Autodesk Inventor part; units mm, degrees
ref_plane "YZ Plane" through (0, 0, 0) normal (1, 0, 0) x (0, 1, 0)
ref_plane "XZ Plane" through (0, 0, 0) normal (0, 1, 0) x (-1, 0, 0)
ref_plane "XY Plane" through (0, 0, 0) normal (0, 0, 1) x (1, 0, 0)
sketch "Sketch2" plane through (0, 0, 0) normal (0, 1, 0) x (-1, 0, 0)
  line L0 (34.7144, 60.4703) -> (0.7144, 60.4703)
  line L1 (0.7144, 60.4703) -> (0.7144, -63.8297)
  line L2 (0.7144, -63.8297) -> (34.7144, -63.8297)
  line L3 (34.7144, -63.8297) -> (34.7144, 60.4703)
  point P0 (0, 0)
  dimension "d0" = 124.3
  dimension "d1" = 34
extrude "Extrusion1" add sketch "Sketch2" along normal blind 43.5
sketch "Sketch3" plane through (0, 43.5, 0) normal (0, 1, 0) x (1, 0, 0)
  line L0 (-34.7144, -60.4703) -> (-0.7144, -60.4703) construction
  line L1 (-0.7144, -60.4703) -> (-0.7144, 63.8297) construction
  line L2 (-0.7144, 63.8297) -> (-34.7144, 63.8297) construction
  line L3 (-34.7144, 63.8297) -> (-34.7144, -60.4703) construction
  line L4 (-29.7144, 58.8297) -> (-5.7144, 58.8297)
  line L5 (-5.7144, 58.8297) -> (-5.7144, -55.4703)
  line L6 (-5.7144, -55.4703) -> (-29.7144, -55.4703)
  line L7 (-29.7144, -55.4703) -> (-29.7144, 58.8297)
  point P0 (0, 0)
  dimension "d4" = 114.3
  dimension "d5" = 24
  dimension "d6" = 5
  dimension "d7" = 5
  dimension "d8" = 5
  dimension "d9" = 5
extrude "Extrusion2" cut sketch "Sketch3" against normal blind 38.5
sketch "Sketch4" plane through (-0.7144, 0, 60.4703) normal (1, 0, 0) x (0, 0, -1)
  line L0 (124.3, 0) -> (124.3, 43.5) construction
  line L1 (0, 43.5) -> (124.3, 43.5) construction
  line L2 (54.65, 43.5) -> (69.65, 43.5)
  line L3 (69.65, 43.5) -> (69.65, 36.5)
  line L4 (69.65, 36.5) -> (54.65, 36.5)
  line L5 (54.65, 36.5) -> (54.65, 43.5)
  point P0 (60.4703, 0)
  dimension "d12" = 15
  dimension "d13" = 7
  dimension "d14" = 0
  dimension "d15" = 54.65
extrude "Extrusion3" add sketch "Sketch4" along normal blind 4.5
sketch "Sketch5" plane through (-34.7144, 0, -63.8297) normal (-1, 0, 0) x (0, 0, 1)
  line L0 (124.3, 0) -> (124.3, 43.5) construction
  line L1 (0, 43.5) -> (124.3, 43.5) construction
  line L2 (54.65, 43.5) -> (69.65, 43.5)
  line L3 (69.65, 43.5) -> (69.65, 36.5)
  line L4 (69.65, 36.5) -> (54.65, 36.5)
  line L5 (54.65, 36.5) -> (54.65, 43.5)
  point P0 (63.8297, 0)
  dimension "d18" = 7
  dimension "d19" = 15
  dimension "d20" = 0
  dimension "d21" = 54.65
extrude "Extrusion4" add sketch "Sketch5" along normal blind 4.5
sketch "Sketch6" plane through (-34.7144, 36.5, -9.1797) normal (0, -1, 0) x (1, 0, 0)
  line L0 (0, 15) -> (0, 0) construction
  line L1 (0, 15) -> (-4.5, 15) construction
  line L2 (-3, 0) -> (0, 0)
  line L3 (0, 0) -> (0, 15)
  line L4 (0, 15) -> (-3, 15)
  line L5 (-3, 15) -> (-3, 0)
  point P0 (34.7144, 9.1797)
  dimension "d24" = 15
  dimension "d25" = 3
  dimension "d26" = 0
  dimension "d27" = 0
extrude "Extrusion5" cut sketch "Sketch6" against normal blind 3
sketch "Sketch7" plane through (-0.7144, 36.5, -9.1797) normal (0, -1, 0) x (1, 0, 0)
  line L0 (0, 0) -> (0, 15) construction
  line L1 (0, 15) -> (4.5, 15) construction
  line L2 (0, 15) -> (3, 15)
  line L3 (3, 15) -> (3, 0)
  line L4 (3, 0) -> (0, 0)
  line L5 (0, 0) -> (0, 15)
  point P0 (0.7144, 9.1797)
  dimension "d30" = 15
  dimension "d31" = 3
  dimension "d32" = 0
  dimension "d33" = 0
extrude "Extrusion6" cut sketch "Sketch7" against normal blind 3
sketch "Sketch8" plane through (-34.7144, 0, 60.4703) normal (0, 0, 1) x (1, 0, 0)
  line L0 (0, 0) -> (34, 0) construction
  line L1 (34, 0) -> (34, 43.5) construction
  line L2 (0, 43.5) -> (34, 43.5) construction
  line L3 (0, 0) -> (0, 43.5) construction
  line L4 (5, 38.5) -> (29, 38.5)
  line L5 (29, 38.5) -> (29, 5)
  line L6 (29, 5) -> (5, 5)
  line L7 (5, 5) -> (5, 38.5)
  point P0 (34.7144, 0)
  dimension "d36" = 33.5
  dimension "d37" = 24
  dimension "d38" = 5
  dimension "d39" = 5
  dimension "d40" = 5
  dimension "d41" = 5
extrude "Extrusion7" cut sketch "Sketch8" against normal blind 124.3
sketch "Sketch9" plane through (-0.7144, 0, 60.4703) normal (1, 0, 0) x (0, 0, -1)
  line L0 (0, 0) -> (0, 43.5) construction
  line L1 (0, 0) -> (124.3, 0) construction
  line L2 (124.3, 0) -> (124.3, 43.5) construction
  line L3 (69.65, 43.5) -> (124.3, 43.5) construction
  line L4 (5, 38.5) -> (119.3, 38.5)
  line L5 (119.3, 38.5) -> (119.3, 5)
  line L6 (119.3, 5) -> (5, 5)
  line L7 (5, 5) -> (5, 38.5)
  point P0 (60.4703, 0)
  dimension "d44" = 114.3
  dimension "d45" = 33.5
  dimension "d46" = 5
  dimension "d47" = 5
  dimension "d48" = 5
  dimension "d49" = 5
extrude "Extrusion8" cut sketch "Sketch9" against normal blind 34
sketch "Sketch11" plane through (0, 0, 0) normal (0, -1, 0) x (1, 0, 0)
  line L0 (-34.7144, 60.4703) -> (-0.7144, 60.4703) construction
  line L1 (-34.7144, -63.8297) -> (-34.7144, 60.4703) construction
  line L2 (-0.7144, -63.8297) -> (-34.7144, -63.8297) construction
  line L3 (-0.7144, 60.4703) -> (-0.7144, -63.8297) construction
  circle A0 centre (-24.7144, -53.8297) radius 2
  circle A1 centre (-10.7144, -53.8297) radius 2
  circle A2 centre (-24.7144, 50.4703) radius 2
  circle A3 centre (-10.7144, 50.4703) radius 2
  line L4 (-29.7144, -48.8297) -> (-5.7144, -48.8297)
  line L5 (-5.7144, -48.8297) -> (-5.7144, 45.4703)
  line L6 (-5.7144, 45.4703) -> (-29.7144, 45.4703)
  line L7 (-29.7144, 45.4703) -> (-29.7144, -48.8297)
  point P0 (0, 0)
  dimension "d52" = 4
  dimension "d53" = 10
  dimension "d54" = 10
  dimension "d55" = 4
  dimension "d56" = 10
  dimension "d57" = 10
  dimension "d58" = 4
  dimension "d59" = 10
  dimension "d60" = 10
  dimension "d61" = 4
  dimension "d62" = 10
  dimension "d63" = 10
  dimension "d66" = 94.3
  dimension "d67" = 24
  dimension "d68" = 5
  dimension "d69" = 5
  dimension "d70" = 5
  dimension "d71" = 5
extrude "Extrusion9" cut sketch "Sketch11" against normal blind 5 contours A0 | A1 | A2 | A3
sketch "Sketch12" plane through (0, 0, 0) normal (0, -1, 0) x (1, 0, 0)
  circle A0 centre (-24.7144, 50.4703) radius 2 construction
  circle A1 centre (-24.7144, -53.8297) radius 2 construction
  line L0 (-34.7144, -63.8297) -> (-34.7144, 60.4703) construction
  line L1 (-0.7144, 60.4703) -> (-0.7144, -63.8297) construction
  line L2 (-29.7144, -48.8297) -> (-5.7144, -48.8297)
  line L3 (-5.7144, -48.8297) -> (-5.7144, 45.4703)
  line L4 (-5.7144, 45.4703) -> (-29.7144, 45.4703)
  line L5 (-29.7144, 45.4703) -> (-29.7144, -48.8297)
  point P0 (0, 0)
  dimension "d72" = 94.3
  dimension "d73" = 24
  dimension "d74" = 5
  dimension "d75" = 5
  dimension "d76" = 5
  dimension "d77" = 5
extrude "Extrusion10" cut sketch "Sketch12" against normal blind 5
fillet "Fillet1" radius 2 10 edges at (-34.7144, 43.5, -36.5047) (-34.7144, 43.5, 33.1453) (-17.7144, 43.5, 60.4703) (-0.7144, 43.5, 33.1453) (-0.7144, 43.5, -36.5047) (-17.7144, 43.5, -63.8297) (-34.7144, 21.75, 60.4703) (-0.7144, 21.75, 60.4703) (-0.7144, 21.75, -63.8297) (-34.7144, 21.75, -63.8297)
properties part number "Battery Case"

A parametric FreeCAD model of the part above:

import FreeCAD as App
import Part
import Sketcher
from FreeCAD import Vector


def edges_at(feature, points):
    """Names of the edges that pass closest to the given points."""
    edges = feature.Shape.Edges
    near = lambda p: min(range(len(edges)), key=lambda i: edges[i].distToShape(Part.Vertex(*p))[0])
    return sorted({f"Edge{near(p) + 1}" for p in points})


def add_polygon(sketch, points):
    """Adds a closed chain of lines whose ends are joined by coincident constraints."""
    first, n = sketch.GeometryCount, len(points)
    for a, b in zip(points, points[1:] + points[:1]):
        sketch.addGeometry(Part.LineSegment(App.Vector(*a, 0), App.Vector(*b, 0)), False)
    for i in range(n):
        sketch.addConstraint(Sketcher.Constraint("Coincident", first + i, 2, first + (i + 1) % n, 1))

doc = App.newDocument("Part")
params = doc.addObject("Spreadsheet::Sheet", "Params")
for row, (alias, value) in enumerate([
    ("sketch1_width", "34 mm"),
    ("sketch1_height", "124.3 mm"),
    ("pad1_length", "43.5 mm"),
    ("sketch2_width", "24 mm"),
    ("sketch2_height", "114.3 mm"),
    ("pocket1_length", "38.5 mm"),
    ("sketch3_width", "7 mm"),
    ("sketch3_height", "15 mm"),
    ("pad2_length", "4.5 mm"),
    ("sketch4_width", "7 mm"),
    ("sketch4_height", "15 mm"),
    ("pad3_length", "4.5 mm"),
    ("sketch5_width", "3 mm"),
    ("sketch5_height", "15 mm"),
    ("pocket2_length", "3 mm"),
    ("sketch6_width", "3 mm"),
    ("sketch6_height", "15 mm"),
    ("pocket3_length", "3 mm"),
    ("sketch7_width", "24 mm"),
    ("sketch7_height", "33.5 mm"),
    ("pocket4_length", "124.3 mm"),
    ("sketch8_width", "33.5 mm"),
    ("sketch8_height", "114.3 mm"),
    ("pocket5_length", "34 mm"),
    ("sketch9_diameter", "4 mm"),
    ("pocket6_length", "5 mm"),
    ("sketch10_width", "24 mm"),
    ("sketch10_height", "94.3 mm"),
    ("pocket7_length", "5 mm"),
    ("fillet_radius", "2 mm"),
], start=1):
    params.set(f"A{row}", alias)
    params.set(f"B{row}", "=" + value)
    params.setAlias(f"B{row}", alias)

body = doc.addObject("PartDesign::Body", "Body")

# Sketch on XZ plane
sketch1 = body.newObject("Sketcher::SketchObject", "Sketch")
sketch1.AttachmentSupport = (doc.getObject("XZ_Plane"), [""])
sketch1.MapMode = "FlatFace"
add_polygon(sketch1, [(-35, -64), (-35, 60), (-1, 60), (-1, -64)])  # lines 0-3
sketch1.addConstraint([
    Sketcher.Constraint("Vertical", 0),
    Sketcher.Constraint("Horizontal", 1),
    Sketcher.Constraint("Vertical", 2),
    Sketcher.Constraint("Horizontal", 3),
    Sketcher.Constraint("DistanceX", 1, 1, 1, 2, 34.0),
    Sketcher.Constraint("DistanceY", 0, 1, 0, 2, 124.3),
    Sketcher.Constraint("DistanceX", 0, 2, -1, 1, 34.7144),
    Sketcher.Constraint("DistanceY", -1, 1, 0, 2, 60.4703),
])
sketch1.setExpression("Constraints[8]", "Params.sketch1_width")
sketch1.setExpression("Constraints[9]", "Params.sketch1_height")
pad1 = body.newObject("PartDesign::Pad", "Pad")
pad1.Profile = sketch1
pad1.setExpression("Length", "Params.pad1_length")
pad1.Reversed = True

# Sketch on XZ plane
sketch2 = body.newObject("Sketcher::SketchObject", "Sketch001")
sketch2.AttachmentSupport = (doc.getObject("XZ_Plane"), [""])
sketch2.MapMode = "FlatFace"
sketch2.AttachmentOffset = App.Placement(Vector(0, 0, -43.5), App.Rotation())
add_polygon(sketch2, [(-6, -59), (-30, -59), (-30, 55), (-6, 55)])  # lines 0-3
sketch2.addConstraint([
    Sketcher.Constraint("Horizontal", 0),
    Sketcher.Constraint("Vertical", 1),
    Sketcher.Constraint("Horizontal", 2),
    Sketcher.Constraint("Vertical", 3),
    Sketcher.Constraint("DistanceX", 0, 2, 0, 1, 24.0),
    Sketcher.Constraint("DistanceY", 1, 1, 1, 2, 114.3),
    Sketcher.Constraint("DistanceX", 0, 2, -1, 1, 29.7144),
    Sketcher.Constraint("DistanceY", 0, 2, -1, 1, 58.8297),
])
sketch2.setExpression("Constraints[8]", "Params.sketch2_width")
sketch2.setExpression("Constraints[9]", "Params.sketch2_height")
pocket1 = body.newObject("PartDesign::Pocket", "Pocket")
pocket1.Profile = sketch2
pocket1.setExpression("Length", "Params.pocket1_length")
pocket1.Reversed = True

# Sketch on YZ plane
sketch3 = body.newObject("Sketcher::SketchObject", "Sketch002")
sketch3.AttachmentSupport = (doc.getObject("YZ_Plane"), [""])
sketch3.MapMode = "FlatFace"
sketch3.AttachmentOffset = App.Placement(Vector(0, 0, -0.7144), App.Rotation())
add_polygon(sketch3, [(44, -9), (44, 6), (36, 6), (36, -9)])  # lines 0-3
sketch3.addConstraint([
    Sketcher.Constraint("Vertical", 0),
    Sketcher.Constraint("Horizontal", 1),
    Sketcher.Constraint("Vertical", 2),
    Sketcher.Constraint("Horizontal", 3),
    Sketcher.Constraint("DistanceX", 1, 2, 1, 1, 7.0),
    Sketcher.Constraint("DistanceY", 0, 1, 0, 2, 15.0),
    Sketcher.Constraint("DistanceX", -1, 1, 0, 2, 43.5),
    Sketcher.Constraint("DistanceY", -1, 1, 0, 2, 5.8203),
])
sketch3.setExpression("Constraints[8]", "Params.sketch3_width")
sketch3.setExpression("Constraints[9]", "Params.sketch3_height")
pad2 = body.newObject("PartDesign::Pad", "Pad001")
pad2.Profile = sketch3
pad2.setExpression("Length", "Params.pad2_length")

# Sketch on YZ plane
sketch4 = body.newObject("Sketcher::SketchObject", "Sketch003")
sketch4.AttachmentSupport = (doc.getObject("YZ_Plane"), [""])
sketch4.MapMode = "FlatFace"
sketch4.AttachmentOffset = App.Placement(Vector(0, 0, -34.7144), App.Rotation())
add_polygon(sketch4, [(44, 6), (44, -9), (36, -9), (36, 6)])  # lines 0-3
sketch4.addConstraint([
    Sketcher.Constraint("Vertical", 0),
    Sketcher.Constraint("Horizontal", 1),
    Sketcher.Constraint("Vertical", 2),
    Sketcher.Constraint("Horizontal", 3),
    Sketcher.Constraint("DistanceX", 1, 2, 1, 1, 7.0),
    Sketcher.Constraint("DistanceY", 0, 2, 0, 1, 15.0),
    Sketcher.Constraint("DistanceX", -1, 1, 0, 2, 43.5),
    Sketcher.Constraint("DistanceY", 0, 2, -1, 1, 9.1797),
])
sketch4.setExpression("Constraints[8]", "Params.sketch4_width")
sketch4.setExpression("Constraints[9]", "Params.sketch4_height")
pad3 = body.newObject("PartDesign::Pad", "Pad002")
pad3.Profile = sketch4
pad3.setExpression("Length", "Params.pad3_length")
pad3.Reversed = True

# Sketch on XZ plane
sketch5 = body.newObject("Sketcher::SketchObject", "Sketch004")
sketch5.AttachmentSupport = (doc.getObject("XZ_Plane"), [""])
sketch5.MapMode = "FlatFace"
sketch5.AttachmentOffset = App.Placement(Vector(0, 0, -36.5), App.Rotation())
add_polygon(sketch5, [(-37.7, 5.8), (-37.7, -9.2), (-34.7, -9.2), (-34.7, 5.8)])  # lines 0-3
sketch5.addConstraint([
    Sketcher.Constraint("Vertical", 0),
    Sketcher.Constraint("Horizontal", 1),
    Sketcher.Constraint("Vertical", 2),
    Sketcher.Constraint("Horizontal", 3),
    Sketcher.Constraint("DistanceX", 1, 1, 1, 2, 3.0),
    Sketcher.Constraint("DistanceY", 0, 2, 0, 1, 15.0),
    Sketcher.Constraint("DistanceX", 0, 2, -1, 1, 37.7144),
    Sketcher.Constraint("DistanceY", 0, 2, -1, 1, 9.1797),
])
sketch5.setExpression("Constraints[8]", "Params.sketch5_width")
sketch5.setExpression("Constraints[9]", "Params.sketch5_height")
pocket2 = body.newObject("PartDesign::Pocket", "Pocket001")
pocket2.Profile = sketch5
pocket2.setExpression("Length", "Params.pocket2_length")

# Sketch on XZ plane
sketch6 = body.newObject("Sketcher::SketchObject", "Sketch005")
sketch6.AttachmentSupport = (doc.getObject("XZ_Plane"), [""])
sketch6.MapMode = "FlatFace"
sketch6.AttachmentOffset = App.Placement(Vector(0, 0, -36.5), App.Rotation())
add_polygon(sketch6, [(2.3, 5.8), (-0.7, 5.8), (-0.7, -9.2), (2.3, -9.2)])  # lines 0-3
sketch6.addConstraint([
    Sketcher.Constraint("Horizontal", 0),
    Sketcher.Constraint("Vertical", 1),
    Sketcher.Constraint("Horizontal", 2),
    Sketcher.Constraint("Vertical", 3),
    Sketcher.Constraint("DistanceX", 0, 2, 0, 1, 3.0),
    Sketcher.Constraint("DistanceY", 1, 2, 1, 1, 15.0),
    Sketcher.Constraint("DistanceX", 0, 2, -1, 1, 0.7144),
    Sketcher.Constraint("DistanceY", -1, 1, 0, 2, 5.8203),
])
sketch6.setExpression("Constraints[8]", "Params.sketch6_width")
sketch6.setExpression("Constraints[9]", "Params.sketch6_height")
pocket3 = body.newObject("PartDesign::Pocket", "Pocket002")
pocket3.Profile = sketch6
pocket3.setExpression("Length", "Params.pocket3_length")

# Sketch on XY plane
sketch7 = body.newObject("Sketcher::SketchObject", "Sketch006")
sketch7.AttachmentSupport = (doc.getObject("XY_Plane"), [""])
sketch7.MapMode = "FlatFace"
sketch7.AttachmentOffset = App.Placement(Vector(0, 0, 60.4703), App.Rotation())
add_polygon(sketch7, [(-6, 38), (-30, 38), (-30, 5), (-6, 5)])  # lines 0-3
sketch7.addConstraint([
    Sketcher.Constraint("Horizontal", 0),
    Sketcher.Constraint("Vertical", 1),
    Sketcher.Constraint("Horizontal", 2),
    Sketcher.Constraint("Vertical", 3),
    Sketcher.Constraint("DistanceX", 0, 2, 0, 1, 24.0),
    Sketcher.Constraint("DistanceY", 1, 2, 1, 1, 33.5),
    Sketcher.Constraint("DistanceY", -1, 1, 1, 2, 5.0),
    Sketcher.Constraint("DistanceX", 0, 2, -1, 1, 29.7144),
])
sketch7.setExpression("Constraints[8]", "Params.sketch7_width")
sketch7.setExpression("Constraints[9]", "Params.sketch7_height")
pocket4 = body.newObject("PartDesign::Pocket", "Pocket003")
pocket4.Profile = sketch7
pocket4.setExpression("Length", "Params.pocket4_length")

# Sketch on YZ plane
sketch8 = body.newObject("Sketcher::SketchObject", "Sketch007")
sketch8.AttachmentSupport = (doc.getObject("YZ_Plane"), [""])
sketch8.MapMode = "FlatFace"
sketch8.AttachmentOffset = App.Placement(Vector(0, 0, -0.7144), App.Rotation())
add_polygon(sketch8, [(38, -59), (38, 55), (5, 55), (5, -59)])  # lines 0-3
sketch8.addConstraint([
    Sketcher.Constraint("Vertical", 0),
    Sketcher.Constraint("Horizontal", 1),
    Sketcher.Constraint("Vertical", 2),
    Sketcher.Constraint("Horizontal", 3),
    Sketcher.Constraint("DistanceX", 1, 2, 1, 1, 33.5),
    Sketcher.Constraint("DistanceY", 0, 1, 0, 2, 114.3),
    Sketcher.Constraint("DistanceX", -1, 1, 1, 2, 5.0),
    Sketcher.Constraint("DistanceY", -1, 1, 0, 2, 55.4703),
])
sketch8.setExpression("Constraints[8]", "Params.sketch8_width")
sketch8.setExpression("Constraints[9]", "Params.sketch8_height")
pocket5 = body.newObject("PartDesign::Pocket", "Pocket004")
pocket5.Profile = sketch8
pocket5.setExpression("Length", "Params.pocket5_length")

# Sketch on XZ plane
sketch9 = body.newObject("Sketcher::SketchObject", "Sketch008")
sketch9.AttachmentSupport = (doc.getObject("XZ_Plane"), [""])
sketch9.MapMode = "FlatFace"
sketch9.addGeometry([
    Part.Circle(Vector(-24.7, -53.8, 0), Vector(0, 0, 1), 2),
    Part.Circle(Vector(-10.7, -53.8, 0), Vector(0, 0, 1), 2),
    Part.Circle(Vector(-24.7, 50.5, 0), Vector(0, 0, 1), 2),
    Part.Circle(Vector(-10.7, 50.5, 0), Vector(0, 0, 1), 2),
], False)
sketch9.addConstraint([
    Sketcher.Constraint("Equal", 0, 1),
    Sketcher.Constraint("Equal", 1, 2),
    Sketcher.Constraint("Equal", 2, 3),
    Sketcher.Constraint("Horizontal", 0, 3, 1, 3),
    Sketcher.Constraint("Horizontal", 2, 3, 3, 3),
    Sketcher.Constraint("Vertical", 0, 3, 2, 3),
    Sketcher.Constraint("Vertical", 1, 3, 3, 3),
    Sketcher.Constraint("Diameter", 0, 4.0),
    Sketcher.Constraint("DistanceX", 0, 3, 1, 3, 14.0),
    Sketcher.Constraint("DistanceY", 0, 3, 2, 3, 104.3),
    Sketcher.Constraint("DistanceX", 0, 3, -1, 1, 24.7144),
    Sketcher.Constraint("DistanceY", 0, 3, -1, 1, 53.8297),
])
sketch9.setExpression("Constraints[7]", "Params.sketch9_diameter")
pocket6 = body.newObject("PartDesign::Pocket", "Pocket005")
pocket6.Profile = sketch9
pocket6.setExpression("Length", "Params.pocket6_length")

# Sketch on XZ plane
sketch10 = body.newObject("Sketcher::SketchObject", "Sketch009")
sketch10.AttachmentSupport = (doc.getObject("XZ_Plane"), [""])
sketch10.MapMode = "FlatFace"
add_polygon(sketch10, [(-30, 45), (-30, -49), (-6, -49), (-6, 45)])  # lines 0-3
sketch10.addConstraint([
    Sketcher.Constraint("Vertical", 0),
    Sketcher.Constraint("Horizontal", 1),
    Sketcher.Constraint("Vertical", 2),
    Sketcher.Constraint("Horizontal", 3),
    Sketcher.Constraint("DistanceX", 1, 1, 1, 2, 24.0),
    Sketcher.Constraint("DistanceY", 0, 2, 0, 1, 94.3),
    Sketcher.Constraint("DistanceX", 0, 2, -1, 1, 29.7144),
    Sketcher.Constraint("DistanceY", 0, 2, -1, 1, 48.8297),
])
sketch10.setExpression("Constraints[8]", "Params.sketch10_width")
sketch10.setExpression("Constraints[9]", "Params.sketch10_height")
pocket7 = body.newObject("PartDesign::Pocket", "Pocket006")
pocket7.Profile = sketch10
pocket7.setExpression("Length", "Params.pocket7_length")
doc.recompute()

fillet = body.newObject("PartDesign::Fillet", "Fillet")
fillet.Base = (pocket7, edges_at(pocket7, [
    (-34.714, 43.5, -36.505),
    (-34.714, 43.5, 33.145),
    (-17.714, 43.5, 60.47),
    (-0.714, 43.5, 33.145),
    (-0.714, 43.5, -36.505),
    (-17.714, 43.5, -63.83),
    (-34.714, 21.75, 60.47),
    (-0.714, 21.75, 60.47),
    (-0.714, 21.75, -63.83),
    (-34.714, 21.75, -63.83),
]))
fillet.setExpression("Radius", "Params.fillet_radius")

doc.recompute()
